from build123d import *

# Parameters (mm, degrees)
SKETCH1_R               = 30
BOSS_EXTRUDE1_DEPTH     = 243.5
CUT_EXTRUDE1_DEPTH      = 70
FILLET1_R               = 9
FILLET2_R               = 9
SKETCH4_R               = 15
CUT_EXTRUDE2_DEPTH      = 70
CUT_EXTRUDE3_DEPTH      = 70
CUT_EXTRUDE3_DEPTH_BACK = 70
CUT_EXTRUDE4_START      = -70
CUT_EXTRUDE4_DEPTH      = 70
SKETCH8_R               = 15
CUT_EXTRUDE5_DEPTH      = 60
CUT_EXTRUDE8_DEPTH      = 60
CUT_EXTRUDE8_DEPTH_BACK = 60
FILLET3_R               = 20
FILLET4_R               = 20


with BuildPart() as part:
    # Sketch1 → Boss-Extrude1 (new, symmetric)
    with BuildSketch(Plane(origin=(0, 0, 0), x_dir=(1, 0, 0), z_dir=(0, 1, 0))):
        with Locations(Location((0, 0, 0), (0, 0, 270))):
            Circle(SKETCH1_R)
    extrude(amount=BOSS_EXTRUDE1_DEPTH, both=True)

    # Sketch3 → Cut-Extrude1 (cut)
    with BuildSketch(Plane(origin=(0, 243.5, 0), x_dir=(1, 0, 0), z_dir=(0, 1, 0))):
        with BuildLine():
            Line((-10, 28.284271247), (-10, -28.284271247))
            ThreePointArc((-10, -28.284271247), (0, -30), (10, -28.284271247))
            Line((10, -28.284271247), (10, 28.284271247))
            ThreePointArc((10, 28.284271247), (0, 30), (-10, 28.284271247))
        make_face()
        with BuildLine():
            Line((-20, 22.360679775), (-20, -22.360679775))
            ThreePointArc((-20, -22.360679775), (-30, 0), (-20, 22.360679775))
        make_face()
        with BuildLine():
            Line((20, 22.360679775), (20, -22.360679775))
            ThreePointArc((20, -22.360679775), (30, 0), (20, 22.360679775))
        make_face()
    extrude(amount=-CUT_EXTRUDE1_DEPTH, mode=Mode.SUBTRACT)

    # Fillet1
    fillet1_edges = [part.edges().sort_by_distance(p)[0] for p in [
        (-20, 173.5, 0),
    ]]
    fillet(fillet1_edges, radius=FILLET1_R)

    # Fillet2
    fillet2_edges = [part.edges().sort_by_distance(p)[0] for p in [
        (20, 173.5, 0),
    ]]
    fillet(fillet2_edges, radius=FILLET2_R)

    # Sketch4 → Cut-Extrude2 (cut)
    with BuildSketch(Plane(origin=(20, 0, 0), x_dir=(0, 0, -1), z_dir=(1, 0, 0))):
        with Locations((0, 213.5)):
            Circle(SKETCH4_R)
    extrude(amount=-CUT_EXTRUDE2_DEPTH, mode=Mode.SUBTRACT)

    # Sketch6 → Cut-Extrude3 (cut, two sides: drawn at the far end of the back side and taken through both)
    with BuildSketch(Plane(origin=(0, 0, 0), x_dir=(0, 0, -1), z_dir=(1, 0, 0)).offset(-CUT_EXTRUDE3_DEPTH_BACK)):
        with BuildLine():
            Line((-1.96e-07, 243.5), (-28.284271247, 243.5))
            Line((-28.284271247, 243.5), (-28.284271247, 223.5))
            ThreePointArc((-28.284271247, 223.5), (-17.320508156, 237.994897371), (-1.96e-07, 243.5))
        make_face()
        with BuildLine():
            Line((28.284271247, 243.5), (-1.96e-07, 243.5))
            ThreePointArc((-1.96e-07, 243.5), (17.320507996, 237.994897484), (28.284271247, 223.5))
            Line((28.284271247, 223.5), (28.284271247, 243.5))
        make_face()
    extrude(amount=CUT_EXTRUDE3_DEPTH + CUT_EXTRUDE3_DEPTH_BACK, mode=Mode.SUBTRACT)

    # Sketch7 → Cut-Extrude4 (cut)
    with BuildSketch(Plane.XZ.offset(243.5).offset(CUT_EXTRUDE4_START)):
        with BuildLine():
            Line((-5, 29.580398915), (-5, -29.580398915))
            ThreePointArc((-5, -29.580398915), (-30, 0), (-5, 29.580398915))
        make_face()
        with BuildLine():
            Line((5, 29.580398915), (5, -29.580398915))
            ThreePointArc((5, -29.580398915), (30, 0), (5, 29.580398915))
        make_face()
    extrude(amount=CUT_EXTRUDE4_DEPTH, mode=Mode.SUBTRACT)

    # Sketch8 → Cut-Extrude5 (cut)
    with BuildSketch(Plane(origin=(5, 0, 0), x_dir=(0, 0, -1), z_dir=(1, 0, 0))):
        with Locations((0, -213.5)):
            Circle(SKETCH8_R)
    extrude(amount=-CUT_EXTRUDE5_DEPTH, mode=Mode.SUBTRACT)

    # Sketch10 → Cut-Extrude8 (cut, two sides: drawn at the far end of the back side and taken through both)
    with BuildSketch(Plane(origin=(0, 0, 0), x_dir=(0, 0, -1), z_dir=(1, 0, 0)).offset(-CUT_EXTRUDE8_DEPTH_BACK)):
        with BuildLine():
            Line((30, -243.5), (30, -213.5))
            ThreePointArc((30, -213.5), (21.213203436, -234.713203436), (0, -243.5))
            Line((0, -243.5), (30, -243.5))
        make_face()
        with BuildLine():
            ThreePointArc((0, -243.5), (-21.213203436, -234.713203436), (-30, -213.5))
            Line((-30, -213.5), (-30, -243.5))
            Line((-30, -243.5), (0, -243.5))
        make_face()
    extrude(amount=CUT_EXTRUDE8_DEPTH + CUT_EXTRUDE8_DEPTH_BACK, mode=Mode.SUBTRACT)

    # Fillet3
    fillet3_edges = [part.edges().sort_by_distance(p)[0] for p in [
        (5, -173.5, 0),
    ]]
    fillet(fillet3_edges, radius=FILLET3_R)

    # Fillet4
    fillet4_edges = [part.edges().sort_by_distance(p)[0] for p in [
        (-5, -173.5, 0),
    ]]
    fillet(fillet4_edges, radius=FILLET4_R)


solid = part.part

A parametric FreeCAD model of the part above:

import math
import FreeCAD as App
import Part
import Sketcher

V = App.Vector
Q = App.Units.Quantity


def edges_at(feature, points):
    """Names of the edges that pass closest to the given points."""
    edges = feature.Shape.Edges
    near = lambda p: min(range(len(edges)), key=lambda i: edges[i].distToShape(Part.Vertex(*p))[0])
    return sorted({f"Edge{near(p) + 1}" for p in points})

doc = App.newDocument("Part")
body = doc.addObject("PartDesign::Body", "Body")

# Sketch on XZ plane
sketch1 = body.newObject("Sketcher::SketchObject", "Sketch")
sketch1.AttachmentSupport = (doc.getObject("XZ_Plane"), [""])
sketch1.MapMode = "FlatFace"
sketch1.addGeometry(Part.Circle(V(0, 0, 0), V(0, 0, 1), 30), False)
sketch1.addConstraint(Sketcher.Constraint("Coincident", 0, 3, -1, 1))
sketch1.addConstraint(Sketcher.Constraint("Diameter", 0, Q("60 mm")))
pad1 = body.newObject("PartDesign::Pad", "Pad")
pad1.Profile = sketch1
pad1.Length = 487
pad1.Midplane = True

# Sketch on XZ plane
sketch2 = body.newObject("Sketcher::SketchObject", "Sketch001")
sketch2.AttachmentSupport = (doc.getObject("XZ_Plane"), [""])
sketch2.MapMode = "FlatFace"
sketch2.AttachmentOffset = App.Placement(V(0, 0, -243.5), App.Rotation())
sketch2.addGeometry(Part.LineSegment(V(-10, -28, 0), V(-10, 28, 0)), False)
sketch2.addGeometry(Part.ArcOfCircle(Part.Circle(V(0, 0, 0), V(0, 0, 1), 30), math.radians(71), math.radians(109)), False)
sketch2.addGeometry(Part.LineSegment(V(10, 28, 0), V(10, -28, 0)), False)
sketch2.addGeometry(Part.ArcOfCircle(Part.Circle(V(0, 0, 0), V(0, 0, 1), 30), math.radians(-109), math.radians(-71)), False)
sketch2.addGeometry(Part.LineSegment(V(-20, 22, 0), V(-20, -22, 0)), False)
sketch2.addGeometry(Part.ArcOfCircle(Part.Circle(V(0, 0, 0), V(0, 0, 1), 30), math.radians(132), math.radians(228)), False)
sketch2.addGeometry(Part.LineSegment(V(20, -22, 0), V(20, 22, 0)), False)
sketch2.addGeometry(Part.ArcOfCircle(Part.Circle(V(0, 0, 0), V(0, 0, 1), 30), math.radians(-48), math.radians(48)), False)
sketch2.addConstraint(Sketcher.Constraint("Coincident", 0, 2, 1, 2))
sketch2.addConstraint(Sketcher.Constraint("Coincident", 1, 1, 2, 1))
sketch2.addConstraint(Sketcher.Constraint("Coincident", 2, 2, 3, 2))
sketch2.addConstraint(Sketcher.Constraint("Coincident", 3, 1, 0, 1))
sketch2.addConstraint(Sketcher.Constraint("Coincident", 4, 1, 5, 1))
sketch2.addConstraint(Sketcher.Constraint("Coincident", 5, 2, 4, 2))
sketch2.addConstraint(Sketcher.Constraint("Coincident", 6, 1, 7, 1))
sketch2.addConstraint(Sketcher.Constraint("Coincident", 7, 2, 6, 2))
sketch2.addConstraint(Sketcher.Constraint("Vertical", 0))
sketch2.addConstraint(Sketcher.Constraint("Vertical", 2))
sketch2.addConstraint(Sketcher.Constraint("Vertical", 4))
sketch2.addConstraint(Sketcher.Constraint("Vertical", 6))
sketch2.addConstraint(Sketcher.Constraint("Coincident", 1, 3, -1, 1))
sketch2.addConstraint(Sketcher.Constraint("Coincident", 3, 3, -1, 1))
sketch2.addConstraint(Sketcher.Constraint("Coincident", 5, 3, -1, 1))
sketch2.addConstraint(Sketcher.Constraint("Coincident", 7, 3, -1, 1))
sketch2.addConstraint(Sketcher.Constraint("Equal", 1, 3))
sketch2.addConstraint(Sketcher.Constraint("Equal", 3, 5))
sketch2.addConstraint(Sketcher.Constraint("Equal", 5, 7))
sketch2.addConstraint(Sketcher.Constraint("Horizontal", 0, 2, 1, 1))
sketch2.addConstraint(Sketcher.Constraint("Horizontal", 5, 2, 6, 1))
sketch2.addConstraint(Sketcher.Constraint("Radius", 1, Q("30 mm")))
sketch2.addConstraint(Sketcher.Constraint("DistanceX", 0, 2, -1, 1, Q("10 mm")))
sketch2.addConstraint(Sketcher.Constraint("DistanceX", 4, 1, -1, 1, Q("20 mm")))
pocket1 = body.newObject("PartDesign::Pocket", "Pocket")
pocket1.Profile = sketch2
pocket1.Length = 70
pocket1.Reversed = True
doc.recompute()

fillet = body.newObject("PartDesign::Fillet", "Fillet")
fillet.Base = (pocket1, edges_at(pocket1, [(-20, 173.5, 0)]))
fillet.Radius = 9
doc.recompute()

fillet2 = body.newObject("PartDesign::Fillet", "Fillet001")
fillet2.Base = (fillet, edges_at(fillet, [(20, 173.5, 0)]))
fillet2.Radius = 9

# Sketch on YZ plane
sketch3 = body.newObject("Sketcher::SketchObject", "Sketch002")
sketch3.AttachmentSupport = (doc.getObject("YZ_Plane"), [""])
sketch3.MapMode = "FlatFace"
sketch3.AttachmentOffset = App.Placement(V(0, 0, 20), App.Rotation())
sketch3.addGeometry(Part.Circle(V(214, 0, 0), V(0, 0, 1), 15), False)
sketch3.addConstraint(Sketcher.Constraint("PointOnObject", 0, 3, -1))
sketch3.addConstraint(Sketcher.Constraint("Diameter", 0, Q("30 mm")))
sketch3.addConstraint(Sketcher.Constraint("DistanceX", -1, 1, 0, 3, Q("213.5 mm")))
pocket2 = body.newObject("PartDesign::Pocket", "Pocket001")
pocket2.Profile = sketch3
pocket2.Length = 70

# Sketch on YZ plane
sketch4 = body.newObject("Sketcher::SketchObject", "Sketch003")
sketch4.AttachmentSupport = (doc.getObject("YZ_Plane"), [""])
sketch4.MapMode = "FlatFace"
sketch4.addGeometry(Part.LineSegment(V(244, 0, 0), V(244, 28, 0)), False)
sketch4.addGeometry(Part.LineSegment(V(244, 28, 0), V(224, 28, 0)), False)
sketch4.addGeometry(Part.ArcOfCircle(Part.Circle(V(214, 0, 0), V(0, 0, 1), 30), math.radians(0), math.radians(71)), False)
sketch4.addGeometry(Part.LineSegment(V(244, -28, 0), V(244, 0, 0)), False)
sketch4.addGeometry(Part.ArcOfCircle(Part.Circle(V(214, 0, 0), V(0, 0, 1), 30), math.radians(-71), math.radians(0)), False)
sketch4.addGeometry(Part.LineSegment(V(224, -28, 0), V(244, -28, 0)), False)
sketch4.addConstraint(Sketcher.Constraint("Coincident", 0, 2, 1, 1))
sketch4.addConstraint(Sketcher.Constraint("Coincident", 1, 2, 2, 2))
sketch4.addConstraint(Sketcher.Constraint("Tangent", 2, 1, 0, 1))
sketch4.addConstraint(Sketcher.Constraint("Tangent", 3, 2, 4, 2))
sketch4.addConstraint(Sketcher.Constraint("Coincident", 4, 1, 5, 1))
sketch4.addConstraint(Sketcher.Constraint("Coincident", 5, 2, 3, 1))
sketch4.addConstraint(Sketcher.Constraint("Vertical", 0))
sketch4.addConstraint(Sketcher.Constraint("Horizontal", 1))
sketch4.addConstraint(Sketcher.Constraint("Vertical", 3))
sketch4.addConstraint(Sketcher.Constraint("Horizontal", 5))
sketch4.addConstraint(Sketcher.Constraint("Coincident", 4, 3, 2, 3))
sketch4.addConstraint(Sketcher.Constraint("Equal", 2, 4))
sketch4.addConstraint(Sketcher.Constraint("Symmetric", 1, 2, 4, 1, -1))
sketch4.addConstraint(Sketcher.Constraint("Radius", 2, Q("30 mm")))
sketch4.addConstraint(Sketcher.Constraint("DistanceX", 1, 2, 1, 1, Q("20 mm")))
sketch4.addConstraint(Sketcher.Constraint("DistanceX", -1, 1, 2, 3, Q("213.5 mm")))
pocket3 = body.newObject("PartDesign::Pocket", "Pocket002")
pocket3.Profile = sketch4
pocket3.Type = "ThroughAll"
pocket3.Midplane = True

# Sketch on XZ plane
sketch5 = body.newObject("Sketcher::SketchObject", "Sketch004")
sketch5.AttachmentSupport = (doc.getObject("XZ_Plane"), [""])
sketch5.MapMode = "FlatFace"
sketch5.AttachmentOffset = App.Placement(V(0, 0, 173.5), App.Rotation())
sketch5.addGeometry(Part.LineSegment(V(-5, -30, 0), V(-5, 30, 0)), False)
sketch5.addGeometry(Part.ArcOfCircle(Part.Circle(V(0, 0, 0), V(0, 0, 1), 30), math.radians(100), math.radians(260)), False)
sketch5.addGeometry(Part.LineSegment(V(5, 30, 0), V(5, -30, 0)), False)
sketch5.addGeometry(Part.ArcOfCircle(Part.Circle(V(0, 0, 0), V(0, 0, 1), 30), math.radians(-80), math.radians(80)), False)
sketch5.addConstraint(Sketcher.Constraint("Coincident", 0, 1, 1, 2))
sketch5.addConstraint(Sketcher.Constraint("Coincident", 1, 1, 0, 2))
sketch5.addConstraint(Sketcher.Constraint("Coincident", 2, 1, 3, 2))
sketch5.addConstraint(Sketcher.Constraint("Coincident", 3, 1, 2, 2))
sketch5.addConstraint(Sketcher.Constraint("Vertical", 0))
sketch5.addConstraint(Sketcher.Constraint("Vertical", 2))
sketch5.addConstraint(Sketcher.Constraint("Coincident", 1, 3, -1, 1))
sketch5.addConstraint(Sketcher.Constraint("Coincident", 3, 3, -1, 1))
sketch5.addConstraint(Sketcher.Constraint("Equal", 1, 3))
sketch5.addConstraint(Sketcher.Constraint("Horizontal", 1, 1, 2, 1))
sketch5.addConstraint(Sketcher.Constraint("Radius", 1, Q("30 mm")))
sketch5.addConstraint(Sketcher.Constraint("DistanceX", 0, 1, -1, 1, Q("5 mm")))
pocket4 = body.newObject("PartDesign::Pocket", "Pocket003")
pocket4.Profile = sketch5
pocket4.Length = 70
pocket4.Reversed = True

# Sketch on YZ plane
sketch6 = body.newObject("Sketcher::SketchObject", "Sketch005")
sketch6.AttachmentSupport = (doc.getObject("YZ_Plane"), [""])
sketch6.MapMode = "FlatFace"
sketch6.AttachmentOffset = App.Placement(V(0, 0, 5), App.Rotation())
sketch6.addGeometry(Part.Circle(V(-214, 0, 0), V(0, 0, 1), 15), False)
sketch6.addConstraint(Sketcher.Constraint("PointOnObject", 0, 3, -1))
sketch6.addConstraint(Sketcher.Constraint("Diameter", 0, Q("30 mm")))
sketch6.addConstraint(Sketcher.Constraint("DistanceX", 0, 3, -1, 1, Q("213.5 mm")))
pocket5 = body.newObject("PartDesign::Pocket", "Pocket004")
pocket5.Profile = sketch6
pocket5.Length = 60

# Sketch on YZ plane
sketch7 = body.newObject("Sketcher::SketchObject", "Sketch006")
sketch7.AttachmentSupport = (doc.getObject("YZ_Plane"), [""])
sketch7.MapMode = "FlatFace"
sketch7.addGeometry(Part.LineSegment(V(-244, -30, 0), V(-214, -30, 0)), False)
sketch7.addGeometry(Part.ArcOfCircle(Part.Circle(V(-214, 0, 0), V(0, 0, 1), 30), math.radians(180), math.radians(270)), False)
sketch7.addGeometry(Part.LineSegment(V(-244, 0, 0), V(-244, -30, 0)), False)
sketch7.addGeometry(Part.ArcOfCircle(Part.Circle(V(-214, 0, 0), V(0, 0, 1), 30), math.radians(90), math.radians(180)), False)
sketch7.addGeometry(Part.LineSegment(V(-214, 30, 0), V(-244, 30, 0)), False)
sketch7.addGeometry(Part.LineSegment(V(-244, 30, 0), V(-244, 0, 0)), False)
sketch7.addConstraint(Sketcher.Constraint("Tangent", 0, 2, 1, 2))
sketch7.addConstraint(Sketcher.Constraint("Tangent", 1, 1, 2, 1))
sketch7.addConstraint(Sketcher.Constraint("Coincident", 2, 2, 0, 1))
sketch7.addConstraint(Sketcher.Constraint("Tangent", 3, 1, 4, 1))
sketch7.addConstraint(Sketcher.Constraint("Coincident", 4, 2, 5, 1))
sketch7.addConstraint(Sketcher.Constraint("Tangent", 5, 2, 3, 2))
sketch7.addConstraint(Sketcher.Constraint("Horizontal", 0))
sketch7.addConstraint(Sketcher.Constraint("Vertical", 2))
sketch7.addConstraint(Sketcher.Constraint("Horizontal", 4))
sketch7.addConstraint(Sketcher.Constraint("Vertical", 5))
sketch7.addConstraint(Sketcher.Constraint("Coincident", 3, 3, 1, 3))
sketch7.addConstraint(Sketcher.Constraint("Equal", 1, 3))
sketch7.addConstraint(Sketcher.Constraint("PointOnObject", 1, 3, -1))
sketch7.addConstraint(Sketcher.Constraint("Radius", 1, Q("30 mm")))
sketch7.addConstraint(Sketcher.Constraint("DistanceX", 1, 3, -1, 1, Q("213.5 mm")))
pocket6 = body.newObject("PartDesign::Pocket", "Pocket005")
pocket6.Profile = sketch7
pocket6.Type = "ThroughAll"
pocket6.Midplane = True
doc.recompute()

fillet3 = body.newObject("PartDesign::Fillet", "Fillet002")
fillet3.Base = (pocket6, edges_at(pocket6, [(5, -173.5, 0)]))
fillet3.Radius = 20
doc.recompute()

fillet4 = body.newObject("PartDesign::Fillet", "Fillet003")
fillet4.Base = (fillet3, edges_at(fillet3, [(-5, -173.5, 0)]))
fillet4.Radius = 20

doc.recompute()
